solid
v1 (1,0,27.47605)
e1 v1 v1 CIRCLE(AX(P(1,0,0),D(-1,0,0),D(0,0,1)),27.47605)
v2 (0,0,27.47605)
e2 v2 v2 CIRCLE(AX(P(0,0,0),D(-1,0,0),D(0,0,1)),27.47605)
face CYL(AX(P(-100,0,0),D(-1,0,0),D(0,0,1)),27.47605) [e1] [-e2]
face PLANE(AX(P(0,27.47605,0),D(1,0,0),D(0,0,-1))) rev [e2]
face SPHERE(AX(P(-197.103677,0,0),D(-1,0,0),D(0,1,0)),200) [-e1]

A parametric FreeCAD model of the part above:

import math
import FreeCAD as App
import Part
import Sketcher
from FreeCAD import Vector
Q = App.Units.Quantity

doc = App.newDocument("Part")
params = doc.addObject("Spreadsheet::Sheet", "Params")
for row, (alias, value) in enumerate([
    ("sketch1_radius", "200 mm"),
    ("sketch1_width", "1 mm"),
    ("revolution_angle", "360 deg"),
], start=1):
    params.set(f"A{row}", alias)
    params.set(f"B{row}", "=" + value)
    params.setAlias(f"B{row}", alias)

body = doc.addObject("PartDesign::Body", "Body")

# Sketch on XY plane
sketch1 = doc.addObject("Sketcher::SketchObject", "Sketch")
body.addObject(sketch1)
sketch1.AttachmentSupport = (doc.XY_Plane, [""])
sketch1.MapMode = "FlatFace"
sketch1.addGeometry([
    Part.LineSegment(Vector(1, 27.5, 0), Vector(0, 27.5, 0)),
    Part.LineSegment(Vector(0, 27.5, 0), Vector(0, 0, 0)),
    Part.LineSegment(Vector(0, 0, 0), Vector(2.9, 0, 0)),
    Part.ArcOfCircle(Part.Circle(Vector(-197.1, 0, 0), Vector(0, 0, 1), 200), math.radians(0), math.radians(7.9)),
], False)
sketch1.addConstraint([
    Sketcher.Constraint("Coincident", 0, 2, 1, 1),
    Sketcher.Constraint("Coincident", 1, 2, 2, 1),
    Sketcher.Constraint("Coincident", 2, 2, 3, 1),
    Sketcher.Constraint("Coincident", 3, 2, 0, 1),
    Sketcher.Constraint("Horizontal", 0),
    Sketcher.Constraint("Vertical", 1),
    Sketcher.Constraint("Horizontal", 2),
    Sketcher.Constraint("Coincident", 1, 2, -1, 1),
    Sketcher.Constraint("PointOnObject", 3, 3, -1),
    Sketcher.Constraint("Radius", 3, Q("200 mm")),
    Sketcher.Constraint("DistanceX", 0, 2, 0, 1, Q("1 mm")),
    Sketcher.Constraint("DistanceY", 1, 2, 1, 1, Q("27.47605 mm")),
])
sketch1.setExpression("Constraints[9]", "Params.sketch1_radius")
sketch1.setExpression("Constraints[10]", "Params.sketch1_width")
revolution = doc.addObject("PartDesign::Revolution", "Revolution")
body.addObject(revolution)
revolution.Profile = sketch1
revolution.ReferenceAxis = (sketch1, ["H_Axis"])
revolution.setExpression("Angle", "Params.revolution_angle")

doc.recompute()
